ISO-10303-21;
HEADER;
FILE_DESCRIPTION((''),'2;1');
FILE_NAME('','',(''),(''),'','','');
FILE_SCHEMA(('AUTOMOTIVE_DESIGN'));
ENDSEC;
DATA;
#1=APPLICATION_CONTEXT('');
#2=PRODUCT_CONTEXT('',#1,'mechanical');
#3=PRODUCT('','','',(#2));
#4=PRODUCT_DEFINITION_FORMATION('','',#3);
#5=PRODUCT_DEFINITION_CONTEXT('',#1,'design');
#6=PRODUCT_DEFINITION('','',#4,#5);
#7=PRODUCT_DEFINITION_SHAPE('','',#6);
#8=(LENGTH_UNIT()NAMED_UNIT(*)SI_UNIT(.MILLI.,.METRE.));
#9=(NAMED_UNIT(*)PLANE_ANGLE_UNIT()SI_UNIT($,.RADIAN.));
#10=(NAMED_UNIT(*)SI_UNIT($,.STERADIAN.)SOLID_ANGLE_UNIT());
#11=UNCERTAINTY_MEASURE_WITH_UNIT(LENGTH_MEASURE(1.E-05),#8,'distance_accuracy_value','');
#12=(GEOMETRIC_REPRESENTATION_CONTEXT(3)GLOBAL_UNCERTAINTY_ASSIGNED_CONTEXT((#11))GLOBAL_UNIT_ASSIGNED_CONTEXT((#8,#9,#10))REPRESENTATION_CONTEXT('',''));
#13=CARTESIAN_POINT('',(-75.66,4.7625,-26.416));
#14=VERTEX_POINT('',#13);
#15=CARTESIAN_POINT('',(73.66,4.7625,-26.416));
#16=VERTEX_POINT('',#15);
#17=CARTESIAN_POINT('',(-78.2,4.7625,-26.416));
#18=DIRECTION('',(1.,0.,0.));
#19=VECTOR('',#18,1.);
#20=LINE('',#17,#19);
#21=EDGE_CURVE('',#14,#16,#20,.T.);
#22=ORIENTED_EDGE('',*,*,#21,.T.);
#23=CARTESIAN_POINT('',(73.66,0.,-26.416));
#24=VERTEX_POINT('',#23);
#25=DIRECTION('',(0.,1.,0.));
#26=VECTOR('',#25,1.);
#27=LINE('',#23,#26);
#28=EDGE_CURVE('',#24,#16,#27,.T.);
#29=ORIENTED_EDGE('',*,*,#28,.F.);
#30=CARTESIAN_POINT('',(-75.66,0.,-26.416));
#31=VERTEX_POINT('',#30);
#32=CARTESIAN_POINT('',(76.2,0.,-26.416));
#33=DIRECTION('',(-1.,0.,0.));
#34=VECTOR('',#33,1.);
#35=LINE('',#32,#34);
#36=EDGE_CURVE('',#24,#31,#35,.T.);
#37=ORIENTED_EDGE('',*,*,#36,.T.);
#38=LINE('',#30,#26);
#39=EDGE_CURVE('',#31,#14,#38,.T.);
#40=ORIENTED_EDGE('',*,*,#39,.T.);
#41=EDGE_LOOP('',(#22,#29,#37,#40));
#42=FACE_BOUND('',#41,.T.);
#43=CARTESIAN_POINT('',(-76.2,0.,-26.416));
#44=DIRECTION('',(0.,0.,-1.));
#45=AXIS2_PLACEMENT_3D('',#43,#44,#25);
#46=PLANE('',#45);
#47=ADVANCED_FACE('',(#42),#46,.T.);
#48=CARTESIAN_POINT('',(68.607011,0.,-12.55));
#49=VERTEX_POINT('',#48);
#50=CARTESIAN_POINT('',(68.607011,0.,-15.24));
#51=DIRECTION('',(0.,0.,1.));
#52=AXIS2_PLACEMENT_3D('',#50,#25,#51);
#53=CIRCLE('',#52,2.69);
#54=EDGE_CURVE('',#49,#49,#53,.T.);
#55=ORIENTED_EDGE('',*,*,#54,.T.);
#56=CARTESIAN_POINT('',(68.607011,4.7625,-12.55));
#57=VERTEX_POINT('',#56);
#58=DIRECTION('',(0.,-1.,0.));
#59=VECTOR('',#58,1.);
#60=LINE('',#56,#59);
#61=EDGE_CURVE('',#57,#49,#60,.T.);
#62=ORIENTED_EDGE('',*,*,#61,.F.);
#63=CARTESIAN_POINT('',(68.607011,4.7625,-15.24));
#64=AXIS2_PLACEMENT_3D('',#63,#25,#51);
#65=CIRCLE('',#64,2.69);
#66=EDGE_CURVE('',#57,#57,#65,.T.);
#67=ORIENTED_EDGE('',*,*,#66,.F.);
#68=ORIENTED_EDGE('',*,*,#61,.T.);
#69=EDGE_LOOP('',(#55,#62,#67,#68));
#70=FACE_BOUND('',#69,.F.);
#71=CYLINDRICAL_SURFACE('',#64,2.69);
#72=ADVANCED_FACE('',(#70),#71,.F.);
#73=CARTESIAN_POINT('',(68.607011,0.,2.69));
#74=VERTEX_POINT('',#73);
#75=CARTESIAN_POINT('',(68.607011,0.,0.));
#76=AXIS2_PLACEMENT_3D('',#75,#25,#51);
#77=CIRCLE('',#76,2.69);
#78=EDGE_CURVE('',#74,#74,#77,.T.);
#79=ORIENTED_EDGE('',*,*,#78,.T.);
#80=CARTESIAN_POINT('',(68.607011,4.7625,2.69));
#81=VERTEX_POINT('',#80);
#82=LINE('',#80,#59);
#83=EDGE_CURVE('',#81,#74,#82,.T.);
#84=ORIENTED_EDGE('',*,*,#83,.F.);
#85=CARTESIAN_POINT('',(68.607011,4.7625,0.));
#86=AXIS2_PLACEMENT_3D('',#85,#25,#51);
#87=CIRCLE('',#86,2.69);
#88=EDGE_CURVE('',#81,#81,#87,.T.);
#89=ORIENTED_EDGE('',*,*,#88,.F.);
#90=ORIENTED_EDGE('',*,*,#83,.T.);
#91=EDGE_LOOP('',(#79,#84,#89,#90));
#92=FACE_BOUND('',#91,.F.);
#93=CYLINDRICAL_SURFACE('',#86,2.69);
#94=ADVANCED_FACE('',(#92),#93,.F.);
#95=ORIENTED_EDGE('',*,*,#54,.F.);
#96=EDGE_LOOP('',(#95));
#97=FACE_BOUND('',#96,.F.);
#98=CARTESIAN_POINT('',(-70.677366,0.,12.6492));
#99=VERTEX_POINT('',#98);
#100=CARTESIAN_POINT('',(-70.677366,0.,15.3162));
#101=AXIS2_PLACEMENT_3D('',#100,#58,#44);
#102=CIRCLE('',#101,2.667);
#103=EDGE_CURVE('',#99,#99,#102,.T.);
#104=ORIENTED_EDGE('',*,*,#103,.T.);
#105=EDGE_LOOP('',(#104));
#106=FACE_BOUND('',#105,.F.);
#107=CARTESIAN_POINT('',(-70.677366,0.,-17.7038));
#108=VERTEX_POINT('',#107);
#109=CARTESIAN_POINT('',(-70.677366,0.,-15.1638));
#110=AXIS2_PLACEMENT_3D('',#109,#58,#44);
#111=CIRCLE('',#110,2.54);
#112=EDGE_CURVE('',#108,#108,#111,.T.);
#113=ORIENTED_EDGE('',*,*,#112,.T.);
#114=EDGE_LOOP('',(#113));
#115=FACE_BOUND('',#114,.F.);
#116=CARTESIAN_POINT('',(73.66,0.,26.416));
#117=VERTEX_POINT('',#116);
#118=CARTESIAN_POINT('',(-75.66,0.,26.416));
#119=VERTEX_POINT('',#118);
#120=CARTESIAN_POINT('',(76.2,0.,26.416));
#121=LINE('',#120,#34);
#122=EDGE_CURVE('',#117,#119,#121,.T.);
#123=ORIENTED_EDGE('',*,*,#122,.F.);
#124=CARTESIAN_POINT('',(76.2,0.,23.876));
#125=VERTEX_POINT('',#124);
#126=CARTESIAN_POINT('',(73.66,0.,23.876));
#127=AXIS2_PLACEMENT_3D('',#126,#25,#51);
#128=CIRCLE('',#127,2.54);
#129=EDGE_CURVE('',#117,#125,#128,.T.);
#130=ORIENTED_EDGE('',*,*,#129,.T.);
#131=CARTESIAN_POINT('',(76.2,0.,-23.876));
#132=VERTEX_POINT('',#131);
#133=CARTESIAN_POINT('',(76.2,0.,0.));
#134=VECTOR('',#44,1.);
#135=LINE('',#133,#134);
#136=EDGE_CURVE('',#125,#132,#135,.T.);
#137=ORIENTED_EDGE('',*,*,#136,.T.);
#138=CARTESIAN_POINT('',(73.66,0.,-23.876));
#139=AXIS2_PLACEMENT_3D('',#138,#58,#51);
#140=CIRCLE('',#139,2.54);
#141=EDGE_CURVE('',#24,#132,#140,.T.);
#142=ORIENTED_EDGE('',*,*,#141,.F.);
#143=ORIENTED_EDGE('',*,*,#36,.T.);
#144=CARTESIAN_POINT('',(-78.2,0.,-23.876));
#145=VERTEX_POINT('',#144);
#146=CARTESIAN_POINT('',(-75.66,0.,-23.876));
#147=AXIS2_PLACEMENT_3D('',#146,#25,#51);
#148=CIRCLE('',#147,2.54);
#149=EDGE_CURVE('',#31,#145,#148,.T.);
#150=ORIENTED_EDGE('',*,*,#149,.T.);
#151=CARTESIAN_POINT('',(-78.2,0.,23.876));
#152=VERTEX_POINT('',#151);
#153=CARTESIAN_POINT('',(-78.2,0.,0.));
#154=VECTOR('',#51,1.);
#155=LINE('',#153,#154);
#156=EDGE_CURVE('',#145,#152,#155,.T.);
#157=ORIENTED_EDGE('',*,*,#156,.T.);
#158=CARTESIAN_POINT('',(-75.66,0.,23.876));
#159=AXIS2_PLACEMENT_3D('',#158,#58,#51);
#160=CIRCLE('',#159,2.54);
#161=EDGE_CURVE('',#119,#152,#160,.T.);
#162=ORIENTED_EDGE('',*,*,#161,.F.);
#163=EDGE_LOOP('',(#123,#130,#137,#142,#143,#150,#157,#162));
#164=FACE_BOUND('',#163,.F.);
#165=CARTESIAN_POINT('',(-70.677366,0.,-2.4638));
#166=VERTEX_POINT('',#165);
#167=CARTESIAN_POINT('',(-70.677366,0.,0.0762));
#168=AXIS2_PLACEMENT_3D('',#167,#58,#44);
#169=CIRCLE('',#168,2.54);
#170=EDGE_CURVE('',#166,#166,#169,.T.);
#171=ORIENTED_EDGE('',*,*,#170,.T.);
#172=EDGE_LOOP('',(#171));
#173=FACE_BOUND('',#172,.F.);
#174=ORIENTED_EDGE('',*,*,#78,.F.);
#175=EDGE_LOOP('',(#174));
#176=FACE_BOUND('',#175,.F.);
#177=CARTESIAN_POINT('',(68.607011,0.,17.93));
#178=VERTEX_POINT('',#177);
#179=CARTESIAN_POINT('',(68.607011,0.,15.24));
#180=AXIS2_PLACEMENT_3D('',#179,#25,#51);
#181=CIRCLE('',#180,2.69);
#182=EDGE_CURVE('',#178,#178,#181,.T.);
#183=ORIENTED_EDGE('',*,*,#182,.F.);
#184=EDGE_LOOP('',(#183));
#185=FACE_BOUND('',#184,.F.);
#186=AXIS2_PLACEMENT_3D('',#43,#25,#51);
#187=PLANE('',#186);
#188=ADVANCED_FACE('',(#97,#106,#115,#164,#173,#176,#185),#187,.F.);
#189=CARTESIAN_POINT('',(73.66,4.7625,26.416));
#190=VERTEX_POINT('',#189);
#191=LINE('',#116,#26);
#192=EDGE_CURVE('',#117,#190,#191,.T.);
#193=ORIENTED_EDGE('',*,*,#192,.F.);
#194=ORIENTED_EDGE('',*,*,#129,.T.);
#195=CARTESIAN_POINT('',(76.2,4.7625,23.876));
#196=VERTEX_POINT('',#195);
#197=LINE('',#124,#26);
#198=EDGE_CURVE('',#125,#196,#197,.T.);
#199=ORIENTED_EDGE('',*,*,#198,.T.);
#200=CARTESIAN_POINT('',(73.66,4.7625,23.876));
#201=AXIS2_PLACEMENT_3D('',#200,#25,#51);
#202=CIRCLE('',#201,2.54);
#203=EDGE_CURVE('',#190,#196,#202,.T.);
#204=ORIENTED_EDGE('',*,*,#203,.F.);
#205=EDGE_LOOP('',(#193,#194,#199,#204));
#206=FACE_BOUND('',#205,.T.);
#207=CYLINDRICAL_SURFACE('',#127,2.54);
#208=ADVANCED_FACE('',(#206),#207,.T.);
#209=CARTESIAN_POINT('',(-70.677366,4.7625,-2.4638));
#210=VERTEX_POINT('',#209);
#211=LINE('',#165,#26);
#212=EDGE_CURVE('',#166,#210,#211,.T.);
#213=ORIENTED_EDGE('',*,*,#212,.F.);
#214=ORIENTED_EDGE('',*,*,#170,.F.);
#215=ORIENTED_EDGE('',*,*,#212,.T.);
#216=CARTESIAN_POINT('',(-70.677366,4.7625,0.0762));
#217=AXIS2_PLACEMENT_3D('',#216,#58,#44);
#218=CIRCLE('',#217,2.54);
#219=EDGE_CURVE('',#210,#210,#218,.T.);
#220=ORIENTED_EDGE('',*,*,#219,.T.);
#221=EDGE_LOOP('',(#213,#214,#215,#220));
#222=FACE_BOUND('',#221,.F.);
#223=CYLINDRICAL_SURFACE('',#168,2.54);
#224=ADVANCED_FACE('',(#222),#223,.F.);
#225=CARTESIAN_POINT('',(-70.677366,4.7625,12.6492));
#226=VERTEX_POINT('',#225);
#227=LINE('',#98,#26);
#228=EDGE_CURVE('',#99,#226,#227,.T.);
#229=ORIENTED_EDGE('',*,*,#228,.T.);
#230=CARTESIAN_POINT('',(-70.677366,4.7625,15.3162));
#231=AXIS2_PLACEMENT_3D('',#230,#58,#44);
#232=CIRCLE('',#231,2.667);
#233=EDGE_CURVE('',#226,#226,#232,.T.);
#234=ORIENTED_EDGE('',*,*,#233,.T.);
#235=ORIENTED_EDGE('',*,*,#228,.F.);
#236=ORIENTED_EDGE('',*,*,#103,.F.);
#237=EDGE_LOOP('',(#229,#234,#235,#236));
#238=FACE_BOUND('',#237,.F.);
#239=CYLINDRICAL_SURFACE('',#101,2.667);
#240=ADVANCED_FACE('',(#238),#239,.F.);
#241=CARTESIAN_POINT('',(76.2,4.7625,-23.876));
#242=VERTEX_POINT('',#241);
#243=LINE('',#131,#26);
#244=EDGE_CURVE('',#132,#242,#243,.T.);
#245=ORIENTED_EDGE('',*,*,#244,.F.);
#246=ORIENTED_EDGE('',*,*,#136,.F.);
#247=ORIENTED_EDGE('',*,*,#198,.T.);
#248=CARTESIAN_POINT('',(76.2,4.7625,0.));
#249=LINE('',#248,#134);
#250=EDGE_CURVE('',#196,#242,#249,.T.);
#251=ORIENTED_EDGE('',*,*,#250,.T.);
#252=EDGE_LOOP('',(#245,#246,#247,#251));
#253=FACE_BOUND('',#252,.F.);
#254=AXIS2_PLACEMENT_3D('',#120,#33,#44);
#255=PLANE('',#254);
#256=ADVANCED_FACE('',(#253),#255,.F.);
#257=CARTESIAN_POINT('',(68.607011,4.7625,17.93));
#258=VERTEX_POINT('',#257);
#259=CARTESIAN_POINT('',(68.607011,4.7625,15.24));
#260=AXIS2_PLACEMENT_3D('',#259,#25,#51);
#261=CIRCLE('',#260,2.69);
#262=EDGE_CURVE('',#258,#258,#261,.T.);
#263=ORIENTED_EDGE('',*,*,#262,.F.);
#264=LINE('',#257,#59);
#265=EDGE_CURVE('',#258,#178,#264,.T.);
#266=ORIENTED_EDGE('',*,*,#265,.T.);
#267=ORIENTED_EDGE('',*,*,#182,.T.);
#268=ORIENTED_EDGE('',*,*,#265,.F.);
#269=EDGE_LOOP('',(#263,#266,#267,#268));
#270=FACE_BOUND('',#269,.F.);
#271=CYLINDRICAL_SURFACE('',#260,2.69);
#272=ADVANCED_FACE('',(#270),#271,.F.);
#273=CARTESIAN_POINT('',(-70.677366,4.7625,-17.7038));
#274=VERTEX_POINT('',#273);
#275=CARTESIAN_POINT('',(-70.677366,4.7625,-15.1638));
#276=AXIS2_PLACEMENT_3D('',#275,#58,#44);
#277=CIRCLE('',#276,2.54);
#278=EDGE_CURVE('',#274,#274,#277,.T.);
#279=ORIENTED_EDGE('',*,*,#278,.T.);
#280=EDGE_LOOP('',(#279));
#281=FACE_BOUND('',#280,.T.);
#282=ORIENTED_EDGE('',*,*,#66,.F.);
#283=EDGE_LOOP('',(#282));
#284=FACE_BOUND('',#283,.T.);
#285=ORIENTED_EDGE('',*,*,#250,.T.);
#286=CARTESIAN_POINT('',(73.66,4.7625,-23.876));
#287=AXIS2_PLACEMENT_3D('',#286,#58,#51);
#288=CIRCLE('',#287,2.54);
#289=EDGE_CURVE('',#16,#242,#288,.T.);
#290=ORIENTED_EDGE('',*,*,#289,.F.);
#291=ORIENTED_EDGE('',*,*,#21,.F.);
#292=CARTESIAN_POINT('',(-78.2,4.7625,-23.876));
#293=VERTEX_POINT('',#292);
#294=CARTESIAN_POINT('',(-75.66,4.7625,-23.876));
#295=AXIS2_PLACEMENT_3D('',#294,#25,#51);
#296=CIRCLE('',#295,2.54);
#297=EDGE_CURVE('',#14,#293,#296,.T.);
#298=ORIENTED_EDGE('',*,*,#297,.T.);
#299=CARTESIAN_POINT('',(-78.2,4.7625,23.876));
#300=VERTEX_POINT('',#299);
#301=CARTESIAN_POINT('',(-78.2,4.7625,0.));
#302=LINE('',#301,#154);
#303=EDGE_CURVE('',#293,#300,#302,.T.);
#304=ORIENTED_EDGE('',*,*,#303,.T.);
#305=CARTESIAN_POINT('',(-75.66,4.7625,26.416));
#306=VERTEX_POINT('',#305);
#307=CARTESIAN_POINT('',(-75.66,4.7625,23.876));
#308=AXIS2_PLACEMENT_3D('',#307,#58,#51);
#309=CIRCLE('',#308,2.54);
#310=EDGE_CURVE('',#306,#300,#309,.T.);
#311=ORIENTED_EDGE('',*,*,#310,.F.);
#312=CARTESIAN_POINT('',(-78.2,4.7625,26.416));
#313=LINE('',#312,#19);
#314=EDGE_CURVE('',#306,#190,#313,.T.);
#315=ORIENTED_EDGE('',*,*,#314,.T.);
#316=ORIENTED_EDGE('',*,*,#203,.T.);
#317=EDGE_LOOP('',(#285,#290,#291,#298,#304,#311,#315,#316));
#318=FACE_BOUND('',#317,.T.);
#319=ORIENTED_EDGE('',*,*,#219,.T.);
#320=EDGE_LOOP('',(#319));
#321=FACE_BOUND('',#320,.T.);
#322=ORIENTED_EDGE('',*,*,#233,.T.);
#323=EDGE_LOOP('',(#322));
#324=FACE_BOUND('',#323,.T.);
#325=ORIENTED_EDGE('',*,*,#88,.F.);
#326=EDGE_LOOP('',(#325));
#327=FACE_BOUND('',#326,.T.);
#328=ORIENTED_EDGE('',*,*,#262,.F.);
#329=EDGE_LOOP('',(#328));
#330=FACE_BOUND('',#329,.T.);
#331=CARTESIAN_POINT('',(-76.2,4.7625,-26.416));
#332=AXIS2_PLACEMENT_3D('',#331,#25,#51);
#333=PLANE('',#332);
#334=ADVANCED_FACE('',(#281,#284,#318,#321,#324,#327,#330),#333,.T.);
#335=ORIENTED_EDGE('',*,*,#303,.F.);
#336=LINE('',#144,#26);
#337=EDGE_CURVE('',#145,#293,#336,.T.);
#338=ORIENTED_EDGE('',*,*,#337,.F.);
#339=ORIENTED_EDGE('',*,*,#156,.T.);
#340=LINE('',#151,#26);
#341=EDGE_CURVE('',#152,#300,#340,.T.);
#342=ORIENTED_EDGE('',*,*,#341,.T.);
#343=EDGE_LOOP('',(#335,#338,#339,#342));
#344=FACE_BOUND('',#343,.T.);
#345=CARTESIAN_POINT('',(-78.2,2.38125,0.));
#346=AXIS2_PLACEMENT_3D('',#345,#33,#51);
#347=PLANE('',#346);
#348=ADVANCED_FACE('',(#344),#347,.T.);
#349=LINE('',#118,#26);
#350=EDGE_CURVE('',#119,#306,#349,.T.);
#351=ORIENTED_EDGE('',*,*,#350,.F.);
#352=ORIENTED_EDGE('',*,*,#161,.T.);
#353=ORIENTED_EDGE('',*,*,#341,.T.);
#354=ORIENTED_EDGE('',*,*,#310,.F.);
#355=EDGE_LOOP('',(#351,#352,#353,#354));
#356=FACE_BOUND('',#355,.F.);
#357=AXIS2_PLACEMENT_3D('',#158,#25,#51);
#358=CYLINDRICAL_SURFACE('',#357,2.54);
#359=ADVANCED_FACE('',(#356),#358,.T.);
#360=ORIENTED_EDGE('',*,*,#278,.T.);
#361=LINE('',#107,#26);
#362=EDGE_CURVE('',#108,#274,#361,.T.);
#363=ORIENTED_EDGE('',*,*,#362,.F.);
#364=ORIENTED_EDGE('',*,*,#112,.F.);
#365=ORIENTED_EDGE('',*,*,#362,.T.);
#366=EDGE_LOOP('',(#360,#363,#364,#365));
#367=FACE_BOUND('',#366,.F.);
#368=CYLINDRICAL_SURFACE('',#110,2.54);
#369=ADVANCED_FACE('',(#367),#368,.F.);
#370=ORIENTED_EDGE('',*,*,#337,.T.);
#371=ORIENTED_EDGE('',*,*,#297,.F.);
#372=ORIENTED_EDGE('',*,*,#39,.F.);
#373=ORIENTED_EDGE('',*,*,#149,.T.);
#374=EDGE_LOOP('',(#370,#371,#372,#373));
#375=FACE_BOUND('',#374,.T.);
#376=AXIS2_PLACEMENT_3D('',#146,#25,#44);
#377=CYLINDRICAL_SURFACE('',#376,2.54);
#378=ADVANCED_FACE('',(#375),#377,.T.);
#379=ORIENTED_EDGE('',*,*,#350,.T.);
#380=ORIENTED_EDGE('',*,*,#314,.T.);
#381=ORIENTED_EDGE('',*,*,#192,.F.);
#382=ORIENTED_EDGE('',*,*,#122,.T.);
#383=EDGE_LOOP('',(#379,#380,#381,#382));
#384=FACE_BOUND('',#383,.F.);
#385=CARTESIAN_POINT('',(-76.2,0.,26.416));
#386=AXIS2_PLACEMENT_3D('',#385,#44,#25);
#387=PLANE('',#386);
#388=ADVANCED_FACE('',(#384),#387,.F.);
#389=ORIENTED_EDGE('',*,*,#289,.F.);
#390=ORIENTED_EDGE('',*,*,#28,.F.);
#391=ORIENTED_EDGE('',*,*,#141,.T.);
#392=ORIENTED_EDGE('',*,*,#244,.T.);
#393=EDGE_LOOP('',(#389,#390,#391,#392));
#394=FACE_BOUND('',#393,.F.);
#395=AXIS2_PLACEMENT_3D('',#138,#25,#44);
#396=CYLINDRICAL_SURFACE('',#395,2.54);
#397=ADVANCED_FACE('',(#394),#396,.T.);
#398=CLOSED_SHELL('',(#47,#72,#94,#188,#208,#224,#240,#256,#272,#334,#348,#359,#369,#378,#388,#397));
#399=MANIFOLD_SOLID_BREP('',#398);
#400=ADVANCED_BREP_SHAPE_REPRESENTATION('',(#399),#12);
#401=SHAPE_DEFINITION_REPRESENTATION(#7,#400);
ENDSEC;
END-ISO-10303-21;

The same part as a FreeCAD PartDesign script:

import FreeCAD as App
import Part
import Sketcher

V = App.Vector
Q = App.Units.Quantity


def edges_at(feature, points):
    """Names of the edges that pass closest to the given points."""
    edges = feature.Shape.Edges
    near = lambda p: min(range(len(edges)), key=lambda i: edges[i].distToShape(Part.Vertex(*p))[0])
    return sorted({f"Edge{near(p) + 1}" for p in points})


def add_polygon(sketch, points):
    """Adds a closed chain of lines whose ends are joined by coincident constraints."""
    first, n = sketch.GeometryCount, len(points)
    for a, b in zip(points, points[1:] + points[:1]):
        sketch.addGeometry(Part.LineSegment(App.Vector(*a, 0), App.Vector(*b, 0)), False)
    for i in range(n):
        sketch.addConstraint(Sketcher.Constraint("Coincident", first + i, 2, first + (i + 1) % n, 1))

doc = App.newDocument("Part")
body = doc.addObject("PartDesign::Body", "Body")

sketch1 = body.newObject("Sketcher::SketchObject", "Sketch")
sketch1.AttachmentSupport = (doc.getObject("XZ_Plane"), [""])
sketch1.MapMode = "FlatFace"
add_polygon(sketch1, [(-76, -26), (-76, 26), (76, 26), (76, -26)])
sketch1.addConstraint([
    Sketcher.Constraint("Vertical", 0),
    Sketcher.Constraint("Horizontal", 1),
    Sketcher.Constraint("Vertical", 2),
    Sketcher.Constraint("Horizontal", 3),
    Sketcher.Constraint("Symmetric", 0, 2, 2, 2, -1, 1),
    Sketcher.Constraint("DistanceX", 1, 1, 1, 2, Q("6 in")),
    Sketcher.Constraint("DistanceY", 0, 1, 0, 2, Q("2.08 in")),
])
pad1 = body.newObject("PartDesign::Pad", "Pad")
pad1.Profile = sketch1
pad1.Length = Q("0.1875 in")
pad1.Reversed = True

sketch2 = body.newObject("Sketcher::SketchObject", "Sketch001")
sketch2.AttachmentSupport = (doc.getObject("XZ_Plane"), [""])
sketch2.MapMode = "FlatFace"
sketch2.AttachmentOffset = App.Placement(V(0, 0, -0.1875 * 25.4), App.Rotation())
sketch2.addGeometry([
    Part.Circle(V(68.6, 15.2, 0), V(0, 0, 1), 2.7),
    Part.Circle(V(68.6, 0, 0), V(0, 0, 1), 2.7),
    Part.Circle(V(68.6, -15.2, 0), V(0, 0, 1), 2.7),
], False)
sketch2.addConstraint([
    Sketcher.Constraint("Equal", 0, 1),
    Sketcher.Constraint("Equal", 1, 2),
    Sketcher.Constraint("Symmetric", 0, 3, 2, 3, -1),
    Sketcher.Constraint("PointOnObject", 1, 3, -1),
    Sketcher.Constraint("Vertical", 0, 3, 1, 3),
    Sketcher.Constraint("DistanceY", -1, 1, 0, 3, Q("0.6 in")),
    Sketcher.Constraint("Diameter", 0, 5.38),
    Sketcher.Constraint("DistanceX", -1, 1, 0, 3, 68.607011),
])
pocket1 = body.newObject("PartDesign::Pocket", "Pocket")
pocket1.Profile = sketch2
pocket1.Type = "ThroughAll"
pocket1.Reversed = True

sketch3 = body.newObject("Sketcher::SketchObject", "Sketch002")
sketch3.AttachmentSupport = (doc.getObject("XZ_Plane"), [""])
sketch3.MapMode = "FlatFace"
sketch3.addGeometry([
    Part.Circle(V(-70.7, 15.3, 0), V(0, 0, 1), 2.7),
    Part.Circle(V(-70.7, 0.1, 0), V(0, 0, 1), 2.5),
    Part.Circle(V(-70.7, -15.2, 0), V(0, 0, 1), 2.5),
], False)
sketch3.addConstraint([
    Sketcher.Constraint("Equal", 1, 2),
    Sketcher.Constraint("Vertical", 0, 3, 1, 3),
    Sketcher.Constraint("Vertical", 1, 3, 2, 3),
    Sketcher.Constraint("Diameter", 1, Q("0.2 in")),
    Sketcher.Constraint("Diameter", 0, Q("0.21 in")),
    Sketcher.Constraint("DistanceY", 1, 3, 0, 3, Q("0.6 in")),
    Sketcher.Constraint("DistanceY", 2, 3, 1, 3, Q("0.6 in")),
    Sketcher.Constraint("DistanceY", -1, 1, 0, 3, Q("0.603 in")),
    Sketcher.Constraint("DistanceX", 0, 3, -1, 1, 70.677366),
])
pocket2 = body.newObject("PartDesign::Pocket", "Pocket001")
pocket2.Profile = sketch3
pocket2.Type = "ThroughAll"

sketch4 = body.newObject("Sketcher::SketchObject", "Sketch003")
sketch4.AttachmentSupport = (doc.getObject("YZ_Plane"), [""])
sketch4.MapMode = "FlatFace"
sketch4.AttachmentOffset = App.Placement(V(0, 0, -3 * 25.4), App.Rotation())
add_polygon(sketch4, [(4.8, -26.4), (0, -26.4), (0, 26.4), (4.8, 26.4)])
sketch4.addConstraint([
    Sketcher.Constraint("Horizontal", 0),
    Sketcher.Constraint("Vertical", 1),
    Sketcher.Constraint("Horizontal", 2),
    Sketcher.Constraint("Vertical", 3),
    Sketcher.Constraint("Symmetric", 0, 2, 1, 2, -1, 1),
    Sketcher.Constraint("DistanceY", 1, 1, 1, 2, Q("2.08 in")),
    Sketcher.Constraint("DistanceX", 0, 2, 0, 1, Q("0.1875 in")),
])
pad2 = body.newObject("PartDesign::Pad", "Pad001")
pad2.Profile = sketch4
pad2.Length = 2
pad2.Reversed = True
doc.recompute()

fillet = body.newObject("PartDesign::Fillet", "Fillet")
fillet.Base = (pad2, edges_at(pad2, [
    (-78.2, 2.381, 26.416),
    (-78.2, 2.381, -26.416),
    (76.2, 2.381, 26.416),
    (76.2, 2.381, -26.416),
]))
fillet.Radius = Q("0.1 in")

doc.recompute()
